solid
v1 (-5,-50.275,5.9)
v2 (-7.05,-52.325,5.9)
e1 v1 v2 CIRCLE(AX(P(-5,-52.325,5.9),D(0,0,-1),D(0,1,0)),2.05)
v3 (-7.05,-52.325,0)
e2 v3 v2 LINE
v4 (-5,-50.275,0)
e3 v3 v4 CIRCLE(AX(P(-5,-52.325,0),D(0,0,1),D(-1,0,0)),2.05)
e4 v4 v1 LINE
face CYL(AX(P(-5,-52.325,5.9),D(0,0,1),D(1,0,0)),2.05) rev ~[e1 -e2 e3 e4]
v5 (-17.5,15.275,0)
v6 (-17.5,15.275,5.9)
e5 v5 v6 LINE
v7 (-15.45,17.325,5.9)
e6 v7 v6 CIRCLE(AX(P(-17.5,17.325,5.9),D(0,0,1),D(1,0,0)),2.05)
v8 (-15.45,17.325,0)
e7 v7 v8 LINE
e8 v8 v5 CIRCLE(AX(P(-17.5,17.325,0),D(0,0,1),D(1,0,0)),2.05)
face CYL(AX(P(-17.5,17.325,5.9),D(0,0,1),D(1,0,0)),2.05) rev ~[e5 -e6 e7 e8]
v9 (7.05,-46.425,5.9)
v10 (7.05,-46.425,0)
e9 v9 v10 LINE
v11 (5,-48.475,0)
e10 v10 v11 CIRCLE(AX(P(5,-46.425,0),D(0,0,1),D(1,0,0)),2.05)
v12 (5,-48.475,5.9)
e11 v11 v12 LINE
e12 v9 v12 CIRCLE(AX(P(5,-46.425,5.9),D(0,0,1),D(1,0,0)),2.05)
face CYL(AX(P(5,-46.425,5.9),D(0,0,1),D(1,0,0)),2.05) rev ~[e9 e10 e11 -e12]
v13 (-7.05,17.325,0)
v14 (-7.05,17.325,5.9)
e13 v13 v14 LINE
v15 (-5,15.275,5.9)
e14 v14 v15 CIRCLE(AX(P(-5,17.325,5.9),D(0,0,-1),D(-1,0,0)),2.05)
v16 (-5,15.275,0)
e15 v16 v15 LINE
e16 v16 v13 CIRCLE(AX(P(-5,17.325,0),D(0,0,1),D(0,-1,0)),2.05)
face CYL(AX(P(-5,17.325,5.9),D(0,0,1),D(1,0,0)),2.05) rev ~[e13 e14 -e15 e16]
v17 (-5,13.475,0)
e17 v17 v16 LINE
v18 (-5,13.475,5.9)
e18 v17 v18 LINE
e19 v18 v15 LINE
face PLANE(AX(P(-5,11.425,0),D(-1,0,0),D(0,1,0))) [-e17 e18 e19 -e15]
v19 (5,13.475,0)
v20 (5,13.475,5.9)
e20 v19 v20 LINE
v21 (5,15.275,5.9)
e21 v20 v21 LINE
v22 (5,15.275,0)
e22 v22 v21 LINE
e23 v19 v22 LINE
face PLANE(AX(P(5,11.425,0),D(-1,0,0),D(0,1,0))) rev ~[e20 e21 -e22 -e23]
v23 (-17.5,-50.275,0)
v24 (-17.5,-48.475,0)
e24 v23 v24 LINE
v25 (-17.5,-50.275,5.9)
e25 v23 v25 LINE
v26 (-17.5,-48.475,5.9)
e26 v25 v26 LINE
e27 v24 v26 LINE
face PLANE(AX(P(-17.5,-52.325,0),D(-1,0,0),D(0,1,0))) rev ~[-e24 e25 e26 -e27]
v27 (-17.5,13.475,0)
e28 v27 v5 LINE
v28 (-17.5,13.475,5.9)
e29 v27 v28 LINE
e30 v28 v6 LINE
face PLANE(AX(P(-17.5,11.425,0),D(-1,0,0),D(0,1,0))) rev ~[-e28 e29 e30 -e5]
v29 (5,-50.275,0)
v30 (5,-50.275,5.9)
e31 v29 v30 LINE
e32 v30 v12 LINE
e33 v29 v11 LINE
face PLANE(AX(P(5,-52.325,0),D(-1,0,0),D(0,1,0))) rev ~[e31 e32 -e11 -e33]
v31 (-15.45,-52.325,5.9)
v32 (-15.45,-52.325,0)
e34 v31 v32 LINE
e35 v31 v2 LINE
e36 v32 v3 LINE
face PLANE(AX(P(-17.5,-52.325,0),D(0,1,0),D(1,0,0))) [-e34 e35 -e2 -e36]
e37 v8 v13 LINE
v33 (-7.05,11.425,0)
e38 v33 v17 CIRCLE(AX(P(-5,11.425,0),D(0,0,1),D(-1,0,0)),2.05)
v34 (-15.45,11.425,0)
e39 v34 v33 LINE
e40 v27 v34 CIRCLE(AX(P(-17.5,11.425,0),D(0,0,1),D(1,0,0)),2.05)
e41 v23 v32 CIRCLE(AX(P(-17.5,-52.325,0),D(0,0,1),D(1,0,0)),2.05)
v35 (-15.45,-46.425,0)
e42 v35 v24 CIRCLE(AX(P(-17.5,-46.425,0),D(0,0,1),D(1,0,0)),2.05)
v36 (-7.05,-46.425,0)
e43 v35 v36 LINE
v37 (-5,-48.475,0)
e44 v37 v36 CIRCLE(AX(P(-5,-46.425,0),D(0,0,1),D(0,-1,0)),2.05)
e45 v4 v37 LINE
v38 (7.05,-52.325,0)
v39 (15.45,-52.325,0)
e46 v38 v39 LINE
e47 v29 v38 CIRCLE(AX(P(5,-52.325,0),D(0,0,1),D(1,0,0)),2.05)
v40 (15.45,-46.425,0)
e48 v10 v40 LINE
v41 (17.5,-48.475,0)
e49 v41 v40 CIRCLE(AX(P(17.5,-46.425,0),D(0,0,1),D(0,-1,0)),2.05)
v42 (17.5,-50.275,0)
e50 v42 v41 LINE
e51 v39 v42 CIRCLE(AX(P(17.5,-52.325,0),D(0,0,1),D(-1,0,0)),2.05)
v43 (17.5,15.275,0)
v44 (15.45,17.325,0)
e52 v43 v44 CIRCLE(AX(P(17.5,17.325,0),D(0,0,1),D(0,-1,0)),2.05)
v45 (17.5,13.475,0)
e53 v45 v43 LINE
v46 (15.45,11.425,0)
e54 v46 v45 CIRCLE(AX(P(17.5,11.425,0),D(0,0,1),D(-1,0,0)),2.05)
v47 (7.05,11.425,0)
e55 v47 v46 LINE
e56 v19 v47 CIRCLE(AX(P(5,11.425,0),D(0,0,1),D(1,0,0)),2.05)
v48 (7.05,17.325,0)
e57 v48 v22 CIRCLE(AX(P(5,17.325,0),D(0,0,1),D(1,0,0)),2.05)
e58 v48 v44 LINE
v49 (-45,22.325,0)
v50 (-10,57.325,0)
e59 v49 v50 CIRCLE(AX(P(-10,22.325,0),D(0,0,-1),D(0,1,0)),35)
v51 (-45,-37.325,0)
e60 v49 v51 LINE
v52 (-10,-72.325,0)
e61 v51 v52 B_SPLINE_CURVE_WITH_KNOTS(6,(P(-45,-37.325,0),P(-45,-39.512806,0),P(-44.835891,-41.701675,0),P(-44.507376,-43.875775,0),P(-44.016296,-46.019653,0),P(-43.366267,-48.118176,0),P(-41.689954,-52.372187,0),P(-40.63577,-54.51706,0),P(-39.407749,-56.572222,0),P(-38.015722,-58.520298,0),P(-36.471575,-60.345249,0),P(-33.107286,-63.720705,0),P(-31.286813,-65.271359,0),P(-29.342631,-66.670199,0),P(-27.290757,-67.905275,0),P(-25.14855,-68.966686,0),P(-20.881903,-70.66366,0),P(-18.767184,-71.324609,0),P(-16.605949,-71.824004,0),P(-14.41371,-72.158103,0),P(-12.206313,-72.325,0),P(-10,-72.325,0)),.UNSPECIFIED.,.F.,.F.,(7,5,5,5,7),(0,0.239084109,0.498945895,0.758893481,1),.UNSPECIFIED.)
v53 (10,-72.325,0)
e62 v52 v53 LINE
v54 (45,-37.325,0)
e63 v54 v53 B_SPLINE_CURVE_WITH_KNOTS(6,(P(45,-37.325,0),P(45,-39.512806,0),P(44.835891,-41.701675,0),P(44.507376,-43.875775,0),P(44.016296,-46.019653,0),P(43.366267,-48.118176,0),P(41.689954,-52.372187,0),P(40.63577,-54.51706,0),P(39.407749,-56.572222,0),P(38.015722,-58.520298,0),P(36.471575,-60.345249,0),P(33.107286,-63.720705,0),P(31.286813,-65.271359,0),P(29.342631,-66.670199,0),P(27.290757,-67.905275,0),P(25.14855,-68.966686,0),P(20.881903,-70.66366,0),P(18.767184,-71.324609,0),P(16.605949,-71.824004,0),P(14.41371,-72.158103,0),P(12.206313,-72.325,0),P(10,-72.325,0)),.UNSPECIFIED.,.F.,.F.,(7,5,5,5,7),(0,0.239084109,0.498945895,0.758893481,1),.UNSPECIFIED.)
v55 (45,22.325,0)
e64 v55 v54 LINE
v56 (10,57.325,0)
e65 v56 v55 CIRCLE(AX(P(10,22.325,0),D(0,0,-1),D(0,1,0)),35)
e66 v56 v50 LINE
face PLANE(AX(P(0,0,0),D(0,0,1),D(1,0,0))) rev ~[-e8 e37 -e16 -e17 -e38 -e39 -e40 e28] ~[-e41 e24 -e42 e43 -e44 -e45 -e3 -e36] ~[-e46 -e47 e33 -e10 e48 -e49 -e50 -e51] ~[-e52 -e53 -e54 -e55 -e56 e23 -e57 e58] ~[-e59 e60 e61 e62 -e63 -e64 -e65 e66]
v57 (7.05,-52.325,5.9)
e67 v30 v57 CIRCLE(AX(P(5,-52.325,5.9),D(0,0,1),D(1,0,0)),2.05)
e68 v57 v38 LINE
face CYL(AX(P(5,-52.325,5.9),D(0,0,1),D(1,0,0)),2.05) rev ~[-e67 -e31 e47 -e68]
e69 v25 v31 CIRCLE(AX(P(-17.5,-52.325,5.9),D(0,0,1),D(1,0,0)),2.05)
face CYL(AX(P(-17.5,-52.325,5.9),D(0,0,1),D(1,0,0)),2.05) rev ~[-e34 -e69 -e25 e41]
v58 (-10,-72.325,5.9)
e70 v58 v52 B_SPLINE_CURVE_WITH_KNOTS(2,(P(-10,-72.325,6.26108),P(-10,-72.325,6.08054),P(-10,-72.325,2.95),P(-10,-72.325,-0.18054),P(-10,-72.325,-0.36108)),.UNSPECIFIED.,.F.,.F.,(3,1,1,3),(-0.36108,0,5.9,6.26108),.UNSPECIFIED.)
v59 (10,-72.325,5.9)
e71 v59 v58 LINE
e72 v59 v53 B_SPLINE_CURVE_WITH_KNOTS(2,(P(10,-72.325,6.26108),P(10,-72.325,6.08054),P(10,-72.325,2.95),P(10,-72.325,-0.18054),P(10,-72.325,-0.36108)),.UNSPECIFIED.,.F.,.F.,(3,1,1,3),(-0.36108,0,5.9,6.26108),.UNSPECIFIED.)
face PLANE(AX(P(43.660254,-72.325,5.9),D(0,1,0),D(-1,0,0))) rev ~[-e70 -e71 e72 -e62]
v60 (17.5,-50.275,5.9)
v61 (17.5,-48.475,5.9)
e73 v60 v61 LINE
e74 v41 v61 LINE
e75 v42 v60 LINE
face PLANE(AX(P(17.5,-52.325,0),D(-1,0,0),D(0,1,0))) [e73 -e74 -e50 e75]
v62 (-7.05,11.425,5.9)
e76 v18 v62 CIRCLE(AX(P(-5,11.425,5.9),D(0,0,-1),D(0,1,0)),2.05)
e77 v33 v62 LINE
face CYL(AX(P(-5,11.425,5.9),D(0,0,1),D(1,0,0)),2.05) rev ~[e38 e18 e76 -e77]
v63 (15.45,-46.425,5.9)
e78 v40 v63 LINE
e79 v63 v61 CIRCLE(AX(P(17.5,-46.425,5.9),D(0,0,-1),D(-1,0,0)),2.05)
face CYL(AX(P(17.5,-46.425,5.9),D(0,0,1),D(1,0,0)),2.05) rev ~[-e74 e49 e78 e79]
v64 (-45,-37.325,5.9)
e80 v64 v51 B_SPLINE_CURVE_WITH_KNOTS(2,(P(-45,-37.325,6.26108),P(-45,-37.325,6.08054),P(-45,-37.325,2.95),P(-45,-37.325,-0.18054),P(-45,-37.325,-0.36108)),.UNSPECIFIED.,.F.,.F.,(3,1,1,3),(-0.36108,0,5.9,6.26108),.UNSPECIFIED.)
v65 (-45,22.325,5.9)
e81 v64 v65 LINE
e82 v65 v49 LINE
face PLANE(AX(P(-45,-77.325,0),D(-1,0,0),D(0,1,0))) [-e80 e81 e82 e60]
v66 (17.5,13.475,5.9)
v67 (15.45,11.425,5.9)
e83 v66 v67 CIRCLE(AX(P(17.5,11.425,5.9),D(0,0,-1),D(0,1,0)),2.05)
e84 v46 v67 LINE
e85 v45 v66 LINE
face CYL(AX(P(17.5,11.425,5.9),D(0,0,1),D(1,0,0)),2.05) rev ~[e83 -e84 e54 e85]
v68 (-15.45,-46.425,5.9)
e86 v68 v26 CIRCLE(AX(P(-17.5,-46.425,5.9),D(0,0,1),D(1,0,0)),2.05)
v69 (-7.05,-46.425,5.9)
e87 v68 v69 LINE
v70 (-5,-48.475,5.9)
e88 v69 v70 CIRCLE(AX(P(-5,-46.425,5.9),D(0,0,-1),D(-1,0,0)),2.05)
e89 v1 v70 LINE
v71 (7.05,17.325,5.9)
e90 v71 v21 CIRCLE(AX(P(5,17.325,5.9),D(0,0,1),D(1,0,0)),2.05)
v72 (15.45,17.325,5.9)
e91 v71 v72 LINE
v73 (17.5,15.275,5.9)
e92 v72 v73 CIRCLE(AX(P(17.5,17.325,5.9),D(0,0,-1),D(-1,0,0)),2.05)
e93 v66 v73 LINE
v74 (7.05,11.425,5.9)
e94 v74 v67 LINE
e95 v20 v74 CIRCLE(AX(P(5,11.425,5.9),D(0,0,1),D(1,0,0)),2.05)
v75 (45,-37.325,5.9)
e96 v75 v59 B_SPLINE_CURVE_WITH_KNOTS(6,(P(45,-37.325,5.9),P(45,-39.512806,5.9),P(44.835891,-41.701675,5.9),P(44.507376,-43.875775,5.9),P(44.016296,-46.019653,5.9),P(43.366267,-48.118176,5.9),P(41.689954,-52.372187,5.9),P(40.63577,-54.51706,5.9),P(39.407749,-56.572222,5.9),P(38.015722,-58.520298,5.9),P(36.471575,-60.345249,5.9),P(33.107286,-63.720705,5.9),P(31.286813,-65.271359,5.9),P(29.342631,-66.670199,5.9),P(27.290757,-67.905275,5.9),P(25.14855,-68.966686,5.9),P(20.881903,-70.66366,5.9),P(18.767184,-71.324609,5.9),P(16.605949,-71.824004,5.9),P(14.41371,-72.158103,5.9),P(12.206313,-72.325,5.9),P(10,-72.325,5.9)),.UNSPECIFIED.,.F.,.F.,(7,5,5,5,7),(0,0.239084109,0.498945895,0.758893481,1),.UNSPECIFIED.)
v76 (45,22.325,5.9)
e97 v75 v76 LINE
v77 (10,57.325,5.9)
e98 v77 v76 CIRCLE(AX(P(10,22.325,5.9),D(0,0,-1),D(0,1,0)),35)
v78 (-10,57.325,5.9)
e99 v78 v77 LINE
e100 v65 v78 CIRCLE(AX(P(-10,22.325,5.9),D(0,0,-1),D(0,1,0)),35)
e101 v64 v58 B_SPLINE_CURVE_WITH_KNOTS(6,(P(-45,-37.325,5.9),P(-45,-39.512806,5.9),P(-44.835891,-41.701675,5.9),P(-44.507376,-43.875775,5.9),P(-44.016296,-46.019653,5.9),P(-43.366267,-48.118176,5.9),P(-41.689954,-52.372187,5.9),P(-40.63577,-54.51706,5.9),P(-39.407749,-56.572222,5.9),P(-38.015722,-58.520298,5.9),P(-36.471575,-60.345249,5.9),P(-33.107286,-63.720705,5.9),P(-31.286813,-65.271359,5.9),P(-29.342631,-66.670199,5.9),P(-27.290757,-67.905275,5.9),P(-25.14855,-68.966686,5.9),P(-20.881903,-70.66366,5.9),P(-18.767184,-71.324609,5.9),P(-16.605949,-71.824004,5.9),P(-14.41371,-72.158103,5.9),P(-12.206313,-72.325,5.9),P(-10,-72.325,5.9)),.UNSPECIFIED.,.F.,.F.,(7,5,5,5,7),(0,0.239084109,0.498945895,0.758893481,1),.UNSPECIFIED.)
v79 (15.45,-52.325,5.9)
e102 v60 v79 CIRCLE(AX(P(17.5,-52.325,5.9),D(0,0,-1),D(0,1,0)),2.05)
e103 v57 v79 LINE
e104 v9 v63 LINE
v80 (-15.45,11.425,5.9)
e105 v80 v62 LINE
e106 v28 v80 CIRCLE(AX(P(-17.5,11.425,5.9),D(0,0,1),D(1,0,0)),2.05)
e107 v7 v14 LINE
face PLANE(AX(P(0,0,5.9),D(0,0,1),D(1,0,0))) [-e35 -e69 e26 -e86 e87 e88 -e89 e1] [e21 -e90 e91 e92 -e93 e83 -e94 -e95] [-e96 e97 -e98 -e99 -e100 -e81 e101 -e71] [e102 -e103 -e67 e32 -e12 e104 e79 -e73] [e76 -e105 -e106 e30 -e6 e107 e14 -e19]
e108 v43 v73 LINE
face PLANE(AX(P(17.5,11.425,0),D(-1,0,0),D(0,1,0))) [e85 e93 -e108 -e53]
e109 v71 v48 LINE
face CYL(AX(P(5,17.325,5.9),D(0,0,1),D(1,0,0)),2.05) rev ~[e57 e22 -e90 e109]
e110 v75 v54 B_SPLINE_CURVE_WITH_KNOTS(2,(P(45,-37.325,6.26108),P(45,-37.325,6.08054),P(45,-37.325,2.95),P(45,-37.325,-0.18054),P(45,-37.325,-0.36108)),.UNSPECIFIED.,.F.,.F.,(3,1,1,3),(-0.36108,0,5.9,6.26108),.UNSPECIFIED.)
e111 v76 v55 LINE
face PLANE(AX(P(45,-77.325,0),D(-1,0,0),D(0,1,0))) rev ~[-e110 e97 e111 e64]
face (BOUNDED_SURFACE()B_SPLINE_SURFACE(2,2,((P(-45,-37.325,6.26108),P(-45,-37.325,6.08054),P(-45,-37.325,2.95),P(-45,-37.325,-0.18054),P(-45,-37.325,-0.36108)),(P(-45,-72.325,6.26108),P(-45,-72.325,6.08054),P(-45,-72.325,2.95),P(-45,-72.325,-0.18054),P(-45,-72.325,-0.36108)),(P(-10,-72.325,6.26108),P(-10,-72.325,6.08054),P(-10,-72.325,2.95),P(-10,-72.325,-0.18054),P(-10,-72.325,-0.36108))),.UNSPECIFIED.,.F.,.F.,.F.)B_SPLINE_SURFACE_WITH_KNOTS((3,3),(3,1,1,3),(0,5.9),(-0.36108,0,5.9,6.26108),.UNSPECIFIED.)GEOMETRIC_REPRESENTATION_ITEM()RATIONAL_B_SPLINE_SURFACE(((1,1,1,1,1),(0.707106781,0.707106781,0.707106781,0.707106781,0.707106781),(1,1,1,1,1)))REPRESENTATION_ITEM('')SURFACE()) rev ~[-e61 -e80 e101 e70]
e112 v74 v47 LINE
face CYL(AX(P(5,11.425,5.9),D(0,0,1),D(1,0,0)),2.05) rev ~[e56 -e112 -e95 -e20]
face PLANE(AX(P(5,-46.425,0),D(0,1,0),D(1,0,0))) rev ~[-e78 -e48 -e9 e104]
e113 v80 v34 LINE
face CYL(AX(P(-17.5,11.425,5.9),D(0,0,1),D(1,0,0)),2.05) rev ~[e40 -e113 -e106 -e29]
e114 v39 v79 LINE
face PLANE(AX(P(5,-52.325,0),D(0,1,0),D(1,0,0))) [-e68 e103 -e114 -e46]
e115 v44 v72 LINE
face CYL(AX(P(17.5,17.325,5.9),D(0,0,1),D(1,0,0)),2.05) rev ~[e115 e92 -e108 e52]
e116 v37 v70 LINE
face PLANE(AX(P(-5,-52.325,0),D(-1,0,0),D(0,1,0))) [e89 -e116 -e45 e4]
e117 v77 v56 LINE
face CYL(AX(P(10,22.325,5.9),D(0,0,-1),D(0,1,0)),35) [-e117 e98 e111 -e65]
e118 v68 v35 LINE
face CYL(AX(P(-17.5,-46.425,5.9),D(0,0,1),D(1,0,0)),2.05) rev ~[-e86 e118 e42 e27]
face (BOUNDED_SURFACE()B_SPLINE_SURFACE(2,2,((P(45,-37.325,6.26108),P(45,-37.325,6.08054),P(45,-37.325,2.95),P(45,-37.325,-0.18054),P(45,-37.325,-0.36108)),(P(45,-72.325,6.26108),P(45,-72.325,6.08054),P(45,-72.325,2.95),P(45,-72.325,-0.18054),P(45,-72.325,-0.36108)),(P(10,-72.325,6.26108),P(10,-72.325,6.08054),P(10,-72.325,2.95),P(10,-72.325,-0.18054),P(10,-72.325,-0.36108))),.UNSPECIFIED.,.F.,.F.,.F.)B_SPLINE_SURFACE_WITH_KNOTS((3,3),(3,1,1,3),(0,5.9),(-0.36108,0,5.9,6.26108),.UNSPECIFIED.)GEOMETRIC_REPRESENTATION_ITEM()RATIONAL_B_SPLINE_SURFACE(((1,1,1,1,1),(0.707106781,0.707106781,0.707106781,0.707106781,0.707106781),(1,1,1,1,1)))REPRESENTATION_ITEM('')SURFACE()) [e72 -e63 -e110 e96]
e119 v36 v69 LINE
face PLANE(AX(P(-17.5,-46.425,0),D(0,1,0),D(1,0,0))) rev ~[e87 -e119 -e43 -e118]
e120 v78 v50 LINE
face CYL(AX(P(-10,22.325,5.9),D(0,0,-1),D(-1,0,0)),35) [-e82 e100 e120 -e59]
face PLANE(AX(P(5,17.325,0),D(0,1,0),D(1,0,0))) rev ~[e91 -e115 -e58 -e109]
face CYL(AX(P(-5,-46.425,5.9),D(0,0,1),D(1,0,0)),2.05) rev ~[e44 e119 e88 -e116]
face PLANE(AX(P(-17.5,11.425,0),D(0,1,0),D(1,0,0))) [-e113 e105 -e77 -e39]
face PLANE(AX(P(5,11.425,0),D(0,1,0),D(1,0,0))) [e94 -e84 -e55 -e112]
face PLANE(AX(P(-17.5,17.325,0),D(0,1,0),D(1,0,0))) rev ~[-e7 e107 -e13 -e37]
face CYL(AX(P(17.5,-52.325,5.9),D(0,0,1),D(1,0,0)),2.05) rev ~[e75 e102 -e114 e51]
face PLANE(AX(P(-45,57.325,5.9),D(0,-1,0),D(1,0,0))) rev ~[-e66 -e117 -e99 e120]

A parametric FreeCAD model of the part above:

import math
import FreeCAD as App
import Part
import Sketcher
from FreeCAD import Vector


def edges_at(feature, points):
    """Names of the edges that pass closest to the given points."""
    edges = feature.Shape.Edges
    near = lambda p: min(range(len(edges)), key=lambda i: edges[i].distToShape(Part.Vertex(*p))[0])
    return sorted({f"Edge{near(p) + 1}" for p in points})

doc = App.newDocument("Part")
params = doc.addObject("Spreadsheet::Sheet", "Params")
for row, (alias, value) in enumerate([
    ("sketch1_width", "90 mm"),
    ("sketch1_width2", "12.5 mm"),
    ("sketch1_height", "5.9 mm"),
    ("sketch1_height2", "154.65 mm"),
    ("pad1_length", "5.9 mm"),
    ("fillet_radius", "10 mm"),
    ("sketch2_radius", "10 mm"),
    ("sketch2_radius2", "2 mm"),
    ("sketch2_width", "9 mm"),
    ("sketch2_length", "17 mm"),
    ("sketch2_length2", "9 mm"),
    ("pad2_length", "5.9 mm"),
    ("sketch3_diameter", "4.1 mm"),
    ("sketch4_diameter", "4.1 mm"),
    ("sketch5_diameter", "4.1 mm"),
    ("sketch6_diameter", "4.1 mm"),
    ("sketch7_diameter", "4.1 mm"),
    ("sketch8_diameter", "4.1 mm"),
    ("sketch9_diameter", "4.1 mm"),
    ("sketch10_diameter", "4.1 mm"),
    ("sketch11_diameter", "4.1 mm"),
    ("sketch12_diameter", "4.1 mm"),
    ("sketch13_diameter", "4.1 mm"),
    ("sketch14_diameter", "4.1 mm"),
    ("sketch15_diameter", "4.1 mm"),
    ("sketch16_diameter", "4.1 mm"),
    ("sketch17_diameter", "4.1 mm"),
    ("sketch18_diameter", "4.1 mm"),
    ("sketch19_radius", "10 mm"),
    ("sketch19_radius2", "2 mm"),
    ("sketch19_width", "90 mm"),
    ("sketch19_height", "10 mm"),
    ("sketch19_length", "9 mm"),
    ("pocket17_length", "5.9 mm"),
    ("sketch20_radius", "10 mm"),
    ("sketch20_width", "9 mm"),
    ("sketch20_length", "17 mm"),
    ("sketch20_width2", "10.4 mm"),
    ("sketch20_height", "12.3 mm"),
    ("fillet2_radius", "35 mm"),
], start=1):
    params.set(f"A{row}", alias)
    params.set(f"B{row}", "=" + value)
    params.setAlias(f"B{row}", alias)

body = doc.addObject("PartDesign::Body", "Body")

# Sketch on XY plane
sketch1 = body.newObject("Sketcher::SketchObject", "Sketch")
sketch1.AttachmentSupport = (doc.getObject("XY_Plane"), [""])
sketch1.MapMode = "FlatFace"
sketch1.addGeometry([
    Part.LineSegment(Vector(-45, 77, 0), Vector(-45, -77, 0)),  # 0
    Part.LineSegment(Vector(-45, -77, 0), Vector(45, -77, 0)),  # 1
    Part.LineSegment(Vector(45, -77, 0), Vector(45, 77, 0)),  # 2
    Part.LineSegment(Vector(45, 77, 0), Vector(-45, 77, 0)),  # 3
    Part.LineSegment(Vector(-5, -52, 0), Vector(-18, -52, 0)),  # 4
    Part.LineSegment(Vector(-18, -52, 0), Vector(-18, -46, 0)),  # 5
    Part.LineSegment(Vector(-18, -46, 0), Vector(-5, -46, 0)),  # 6
    Part.LineSegment(Vector(-5, -46, 0), Vector(-5, -52, 0)),  # 7
    Part.LineSegment(Vector(18, -52, 0), Vector(5, -52, 0)),  # 8
    Part.LineSegment(Vector(5, -52, 0), Vector(5, -46, 0)),  # 9
    Part.LineSegment(Vector(5, -46, 0), Vector(18, -46, 0)),  # 10
    Part.LineSegment(Vector(18, -46, 0), Vector(18, -52, 0)),  # 11
    Part.LineSegment(Vector(-5, 11, 0), Vector(-18, 11, 0)),  # 12
    Part.LineSegment(Vector(-18, 11, 0), Vector(-18, 17, 0)),  # 13
    Part.LineSegment(Vector(-18, 17, 0), Vector(-5, 17, 0)),  # 14
    Part.LineSegment(Vector(-5, 17, 0), Vector(-5, 11, 0)),  # 15
    Part.LineSegment(Vector(18, 11, 0), Vector(5, 11, 0)),  # 16
    Part.LineSegment(Vector(5, 11, 0), Vector(5, 17, 0)),  # 17
    Part.LineSegment(Vector(5, 17, 0), Vector(18, 17, 0)),  # 18
    Part.LineSegment(Vector(18, 17, 0), Vector(18, 11, 0)),  # 19
], False)
sketch1.addConstraint([
    Sketcher.Constraint("Coincident", 0, 2, 1, 1),
    Sketcher.Constraint("Coincident", 1, 2, 2, 1),
    Sketcher.Constraint("Coincident", 2, 2, 3, 1),
    Sketcher.Constraint("Coincident", 3, 2, 0, 1),
    Sketcher.Constraint("Coincident", 4, 2, 5, 1),
    Sketcher.Constraint("Coincident", 5, 2, 6, 1),
    Sketcher.Constraint("Coincident", 6, 2, 7, 1),
    Sketcher.Constraint("Coincident", 7, 2, 4, 1),
    Sketcher.Constraint("Coincident", 8, 2, 9, 1),
    Sketcher.Constraint("Coincident", 9, 2, 10, 1),
    Sketcher.Constraint("Coincident", 10, 2, 11, 1),
    Sketcher.Constraint("Coincident", 11, 2, 8, 1),
    Sketcher.Constraint("Coincident", 12, 2, 13, 1),
    Sketcher.Constraint("Coincident", 13, 2, 14, 1),
    Sketcher.Constraint("Coincident", 14, 2, 15, 1),
    Sketcher.Constraint("Coincident", 15, 2, 12, 1),
    Sketcher.Constraint("Coincident", 16, 2, 17, 1),
    Sketcher.Constraint("Coincident", 17, 2, 18, 1),
    Sketcher.Constraint("Coincident", 18, 2, 19, 1),
    Sketcher.Constraint("Coincident", 19, 2, 16, 1),
    Sketcher.Constraint("Vertical", 0),
    Sketcher.Constraint("Horizontal", 1),
    Sketcher.Constraint("Vertical", 2),
    Sketcher.Constraint("Horizontal", 3),
    Sketcher.Constraint("Horizontal", 4),
    Sketcher.Constraint("Vertical", 5),
    Sketcher.Constraint("Horizontal", 6),
    Sketcher.Constraint("Vertical", 7),
    Sketcher.Constraint("Horizontal", 8),
    Sketcher.Constraint("Vertical", 9),
    Sketcher.Constraint("Horizontal", 10),
    Sketcher.Constraint("Vertical", 11),
    Sketcher.Constraint("Horizontal", 12),
    Sketcher.Constraint("Vertical", 13),
    Sketcher.Constraint("Horizontal", 14),
    Sketcher.Constraint("Vertical", 15),
    Sketcher.Constraint("Horizontal", 16),
    Sketcher.Constraint("Vertical", 17),
    Sketcher.Constraint("Horizontal", 18),
    Sketcher.Constraint("Vertical", 19),
    Sketcher.Constraint("Symmetric", 0, 2, 2, 2, -1, 1),
    Sketcher.Constraint("Symmetric", 7, 2, 8, 2, -2),
    Sketcher.Constraint("Symmetric", 5, 2, 10, 2, -2),
    Sketcher.Constraint("Symmetric", 15, 2, 16, 2, -2),
    Sketcher.Constraint("Symmetric", 13, 2, 18, 2, -2),
    Sketcher.Constraint("Vertical", 5, 2, 12, 2),
    Sketcher.Constraint("Vertical", 7, 2, 14, 2),
    Sketcher.Constraint("Equal", 11, 13),
    Sketcher.Constraint("DistanceX", 1, 1, 1, 2, 90.0),
    Sketcher.Constraint("DistanceX", 4, 2, 4, 1, 12.5),
    Sketcher.Constraint("DistanceY", 5, 1, 5, 2, 5.9),
    Sketcher.Constraint("DistanceX", 6, 2, -1, 1, 5.0),
    Sketcher.Constraint("DistanceY", 0, 2, 4, 2, 25.0),
    Sketcher.Constraint("DistanceY", 13, 2, 3, 2, 60.0),
    Sketcher.Constraint("DistanceY", 0, 2, 0, 1, 154.65),
])
sketch1.setExpression("Constraints[48]", "Params.sketch1_width")
sketch1.setExpression("Constraints[49]", "Params.sketch1_width2")
sketch1.setExpression("Constraints[50]", "Params.sketch1_height")
sketch1.setExpression("Constraints[54]", "Params.sketch1_height2")
pad1 = body.newObject("PartDesign::Pad", "Pad")
pad1.Profile = sketch1
pad1.setExpression("Length", "Params.pad1_length")
doc.recompute()

fillet = body.newObject("PartDesign::Fillet", "Fillet")
fillet.Base = (pad1, edges_at(pad1, [
    (45, -77.325, 2.95),
    (-45, -77.325, 2.95),
    (-45, 77.325, 2.95),
    (45, 77.325, 2.95),
]))
fillet.setExpression("Radius", "Params.fillet_radius")

# Sketch on XY plane
sketch2 = body.newObject("Sketcher::SketchObject", "Sketch001")
sketch2.AttachmentSupport = (doc.getObject("XY_Plane"), [""])
sketch2.MapMode = "FlatFace"
sketch2.AttachmentOffset = App.Placement(Vector(0, 0, 5.9), App.Rotation())
sketch2.addGeometry([
    Part.LineSegment(Vector(24.6, -77.3, 0), Vector(-24.6, -77.3, 0)),  # 0
    Part.LineSegment(Vector(-24.6, -77.3, 0), Vector(-10, -90.9, 0)),  # 1
    Part.LineSegment(Vector(-10, -90.9, 0), Vector(-10, -103.2, 0)),  # 2
    Part.LineSegment(Vector(-10, -103.2, 0), Vector(-4.5, -119.3, 0)),  # 3
    Part.LineSegment(Vector(-4.5, -119.3, 0), Vector(4.5, -119.3, 0)),  # 4
    Part.LineSegment(Vector(4.5, -119.3, 0), Vector(10, -103.2, 0)),  # 5
    Part.LineSegment(Vector(10, -103.2, 0), Vector(10, -90.9, 0)),  # 6
    Part.LineSegment(Vector(10, -90.9, 0), Vector(24.6, -77.3, 0)),  # 7
    Part.LineSegment(Vector(-45, 67.3, 0), Vector(-45, 53.5, 0)),  # 8
    Part.LineSegment(Vector(-45, 53.5, 0), Vector(0, 77.3, 0)),  # 9
    Part.ArcOfCircle(Part.Circle(Vector(0, 87.3, 0), Vector(0, 0, 1), 10), math.radians(-149), math.radians(-90)),  # 10
    Part.LineSegment(Vector(-8.5, 82.1, 0), Vector(-15.7, 93.8, 0)),  # 11
    Part.LineSegment(Vector(-15.7, 93.8, 0), Vector(-36.6, 117.7, 0)),  # 12
    Part.LineSegment(Vector(-36.6, 117.7, 0), Vector(-44.3, 113.1, 0)),  # 13
    Part.LineSegment(Vector(-44.3, 113.1, 0), Vector(-38.6, 93.1, 0)),  # 14
    Part.LineSegment(Vector(-38.6, 93.1, 0), Vector(-32, 80.2, 0)),  # 15
    Part.ArcOfCircle(Part.Circle(Vector(-33.7, 79.3, 0), Vector(0, 0, 1), 2), math.radians(-90), math.radians(27)),  # 16
    Part.LineSegment(Vector(-33.7, 77.3, 0), Vector(-35, 77.3, 0)),  # 17
    Part.ArcOfCircle(Part.Circle(Vector(-35, 67.3, 0), Vector(0, 0, 1), 10), math.radians(90), math.radians(180)),  # 18
    Part.ArcOfCircle(Part.Circle(Vector(0, 87.3, 0), Vector(0, 0, 1), 10), math.radians(-90), math.radians(-31)),  # 19
    Part.LineSegment(Vector(0, 77.3, 0), Vector(45, 53.5, 0)),  # 20
    Part.LineSegment(Vector(45, 53.5, 0), Vector(45, 67.3, 0)),  # 21
    Part.ArcOfCircle(Part.Circle(Vector(35, 67.3, 0), Vector(0, 0, 1), 10), math.radians(0), math.radians(90)),  # 22
    Part.LineSegment(Vector(35, 77.3, 0), Vector(33.7, 77.3, 0)),  # 23
    Part.ArcOfCircle(Part.Circle(Vector(33.7, 79.3, 0), Vector(0, 0, 1), 2), math.radians(153), math.radians(270)),  # 24
    Part.LineSegment(Vector(32, 80.2, 0), Vector(38.6, 93.1, 0)),  # 25
    Part.LineSegment(Vector(38.6, 93.1, 0), Vector(44.3, 113.1, 0)),  # 26
    Part.LineSegment(Vector(44.3, 113.1, 0), Vector(36.6, 117.7, 0)),  # 27
    Part.LineSegment(Vector(36.6, 117.7, 0), Vector(15.7, 93.8, 0)),  # 28
    Part.LineSegment(Vector(15.7, 93.8, 0), Vector(8.5, 82.1, 0)),  # 29
], False)
sketch2.addConstraint([
    Sketcher.Constraint("Coincident", 0, 2, 1, 1),
    Sketcher.Constraint("Coincident", 1, 2, 2, 1),
    Sketcher.Constraint("Coincident", 2, 2, 3, 1),
    Sketcher.Constraint("Coincident", 3, 2, 4, 1),
    Sketcher.Constraint("Coincident", 4, 2, 5, 1),
    Sketcher.Constraint("Coincident", 5, 2, 6, 1),
    Sketcher.Constraint("Coincident", 6, 2, 7, 1),
    Sketcher.Constraint("Coincident", 7, 2, 0, 1),
    Sketcher.Constraint("Coincident", 8, 2, 9, 1),
    Sketcher.Constraint("Coincident", 9, 2, 10, 2),
    Sketcher.Constraint("Tangent", 10, 1, 11, 1),
    Sketcher.Constraint("Coincident", 11, 2, 12, 1),
    Sketcher.Constraint("Coincident", 12, 2, 13, 1),
    Sketcher.Constraint("Coincident", 13, 2, 14, 1),
    Sketcher.Constraint("Coincident", 14, 2, 15, 1),
    Sketcher.Constraint("Tangent", 15, 2, 16, 2),
    Sketcher.Constraint("Tangent", 16, 1, 17, 1),
    Sketcher.Constraint("Tangent", 17, 2, 18, 1),
    Sketcher.Constraint("Tangent", 18, 2, 8, 1),
    Sketcher.Constraint("Coincident", 19, 1, 20, 1),
    Sketcher.Constraint("Coincident", 20, 2, 21, 1),
    Sketcher.Constraint("Tangent", 21, 2, 22, 1),
    Sketcher.Constraint("Tangent", 22, 2, 23, 1),
    Sketcher.Constraint("Tangent", 23, 2, 24, 2),
    Sketcher.Constraint("Tangent", 24, 1, 25, 1),
    Sketcher.Constraint("Coincident", 25, 2, 26, 1),
    Sketcher.Constraint("Coincident", 26, 2, 27, 1),
    Sketcher.Constraint("Coincident", 27, 2, 28, 1),
    Sketcher.Constraint("Coincident", 28, 2, 29, 1),
    Sketcher.Constraint("Tangent", 29, 2, 19, 2),
    Sketcher.Constraint("Horizontal", 0),
    Sketcher.Constraint("Vertical", 2),
    Sketcher.Constraint("Horizontal", 4),
    Sketcher.Constraint("Vertical", 6),
    Sketcher.Constraint("Vertical", 8),
    Sketcher.Constraint("Horizontal", 17),
    Sketcher.Constraint("Vertical", 21),
    Sketcher.Constraint("Horizontal", 23),
    Sketcher.Constraint("Coincident", 19, 3, 10, 3),
    Sketcher.Constraint("Coincident", 19, 1, 9, 2),
    Sketcher.Constraint("Equal", 10, 18),
    Sketcher.Constraint("Equal", 19, 22),
    Sketcher.Constraint("Equal", 16, 24),
    Sketcher.Constraint("Symmetric", 18, 3, 22, 3, -2),
    Sketcher.Constraint("Symmetric", 2, 2, 5, 2, -2),
    Sketcher.Constraint("Symmetric", 15, 2, 24, 1, -2),
    Sketcher.Constraint("Symmetric", 13, 2, 26, 2, -2),
    Sketcher.Constraint("Symmetric", 12, 2, 27, 2, -2),
    Sketcher.Constraint("Symmetric", 11, 2, 28, 2, -2),
    Sketcher.Constraint("PointOnObject", 10, 3, -2),
    Sketcher.Constraint("PointOnObject", 9, 2, -2),
    Sketcher.Constraint("Perpendicular", 11, 13),
    Sketcher.Constraint("Horizontal", 1, 2, 6, 2),
    Sketcher.Constraint("Horizontal", 9, 2, 16, 1),
    Sketcher.Constraint("Horizontal", 8, 2, 20, 2),
    Sketcher.Constraint("Horizontal", 14, 2, 25, 2),
    Sketcher.Constraint("Equal", 3, 5),
    Sketcher.Constraint("Equal", 1, 7),
    Sketcher.Constraint("Radius", 10, 10.0),
    Sketcher.Constraint("Radius", 16, 2.0),
    Sketcher.Constraint("DistanceX", 4, 1, 4, 2, 9.0),
    Sketcher.Constraint("Distance", 3, 17.0),
    Sketcher.Constraint("Distance", 13, 9.0),
    Sketcher.Constraint("DistanceX", 0, 2, 0, 1, 49.2),
    Sketcher.Constraint("DistanceY", 2, 2, 2, 1, 12.3),
    Sketcher.Constraint("DistanceX", 18, 3, -1, 1, 35.0),
    Sketcher.Constraint("DistanceX", 1, 2, -1, 1, 10.0),
    Sketcher.Constraint("DistanceY", 3, 2, 0, 2, 42.0),
    Sketcher.Constraint("DistanceY", 14, 2, 13, 2, 20.0),
    Sketcher.Constraint("DistanceY", 0, 2, 18, 3, 144.65),
    Sketcher.Constraint("DistanceY", -1, 1, 10, 3, 87.325),
    Sketcher.Constraint("DistanceX", 15, 2, 11, 2, 16.317001),
    Sketcher.Constraint("DistanceX", 17, 2, 17, 1, 1.252091),
    Sketcher.Constraint("DistanceY", 15, 2, 10, 1, 1.892902),
    Sketcher.Constraint("Distance", 11, 13.690549),
    Sketcher.Constraint("Distance", 12, 31.788862),
    Sketcher.Constraint("DistanceY", 8, 2, 8, 1, 13.842652),
    Sketcher.Constraint("DistanceY", -1, 1, 12, 2, 117.743891),
])
sketch2.setExpression("Constraints[58]", "Params.sketch2_radius")
sketch2.setExpression("Constraints[59]", "Params.sketch2_radius2")
sketch2.setExpression("Constraints[60]", "Params.sketch2_width")
sketch2.setExpression("Constraints[61]", "Params.sketch2_length")
sketch2.setExpression("Constraints[62]", "Params.sketch2_length2")
pad2 = body.newObject("PartDesign::Pad", "Pad001")
pad2.Profile = sketch2
pad2.setExpression("Length", "Params.pad2_length")
pad2.Reversed = True

# Sketch on XY plane
sketch3 = body.newObject("Sketcher::SketchObject", "Sketch002")
sketch3.AttachmentSupport = (doc.getObject("XY_Plane"), [""])
sketch3.MapMode = "FlatFace"
sketch3.AttachmentOffset = App.Placement(Vector(0, 0, 5.9), App.Rotation())
sketch3.addGeometry(Part.Circle(Vector(-17.5, 11.4, 0), Vector(0, 0, 1), 2), False)
sketch3.addConstraint([
    Sketcher.Constraint("Diameter", 0, 4.1),
    Sketcher.Constraint("DistanceX", 0, 3, -1, 1, 17.5),
    Sketcher.Constraint("DistanceY", -1, 1, 0, 3, 11.425),
])
sketch3.setExpression("Constraints[0]", "Params.sketch3_diameter")
pocket1 = body.newObject("PartDesign::Pocket", "Pocket")
pocket1.Profile = sketch3
pocket1.Type = "UpToFirst"

# Sketch on XY plane
sketch4 = body.newObject("Sketcher::SketchObject", "Sketch003")
sketch4.AttachmentSupport = (doc.getObject("XY_Plane"), [""])
sketch4.MapMode = "FlatFace"
sketch4.AttachmentOffset = App.Placement(Vector(0, 0, 5.9), App.Rotation())
sketch4.addGeometry(Part.Circle(Vector(-5, 11.4, 0), Vector(0, 0, 1), 2), False)
sketch4.addConstraint([
    Sketcher.Constraint("Diameter", 0, 4.1),
    Sketcher.Constraint("DistanceX", 0, 3, -1, 1, 5.0),
    Sketcher.Constraint("DistanceY", -1, 1, 0, 3, 11.425),
])
sketch4.setExpression("Constraints[0]", "Params.sketch4_diameter")
pocket2 = body.newObject("PartDesign::Pocket", "Pocket001")
pocket2.Profile = sketch4
pocket2.Type = "UpToFirst"

# Sketch on XY plane
sketch5 = body.newObject("Sketcher::SketchObject", "Sketch004")
sketch5.AttachmentSupport = (doc.getObject("XY_Plane"), [""])
sketch5.MapMode = "FlatFace"
sketch5.AttachmentOffset = App.Placement(Vector(0, 0, 5.9), App.Rotation())
sketch5.addGeometry(Part.Circle(Vector(-5, 17.3, 0), Vector(0, 0, 1), 2), False)
sketch5.addConstraint([
    Sketcher.Constraint("Diameter", 0, 4.1),
    Sketcher.Constraint("DistanceX", 0, 3, -1, 1, 5.0),
    Sketcher.Constraint("DistanceY", -1, 1, 0, 3, 17.325),
])
sketch5.setExpression("Constraints[0]", "Params.sketch5_diameter")
pocket3 = body.newObject("PartDesign::Pocket", "Pocket002")
pocket3.Profile = sketch5
pocket3.Type = "UpToFirst"

# Sketch on XY plane
sketch6 = body.newObject("Sketcher::SketchObject", "Sketch005")
sketch6.AttachmentSupport = (doc.getObject("XY_Plane"), [""])
sketch6.MapMode = "FlatFace"
sketch6.AttachmentOffset = App.Placement(Vector(0, 0, 5.9), App.Rotation())
sketch6.addGeometry(Part.Circle(Vector(-17.5, 17.3, 0), Vector(0, 0, 1), 2), False)
sketch6.addConstraint([
    Sketcher.Constraint("Diameter", 0, 4.1),
    Sketcher.Constraint("DistanceX", 0, 3, -1, 1, 17.5),
    Sketcher.Constraint("DistanceY", -1, 1, 0, 3, 17.325),
])
sketch6.setExpression("Constraints[0]", "Params.sketch6_diameter")
pocket4 = body.newObject("PartDesign::Pocket", "Pocket003")
pocket4.Profile = sketch6
pocket4.Type = "UpToFirst"

# Sketch on XY plane
sketch7 = body.newObject("Sketcher::SketchObject", "Sketch006")
sketch7.AttachmentSupport = (doc.getObject("XY_Plane"), [""])
sketch7.MapMode = "FlatFace"
sketch7.AttachmentOffset = App.Placement(Vector(0, 0, 5.9), App.Rotation())
sketch7.addGeometry(Part.Circle(Vector(17.5, 11.4, 0), Vector(0, 0, 1), 2), False)
sketch7.addConstraint([
    Sketcher.Constraint("Diameter", 0, 4.1),
    Sketcher.Constraint("DistanceX", -1, 1, 0, 3, 17.5),
    Sketcher.Constraint("DistanceY", -1, 1, 0, 3, 11.425),
])
sketch7.setExpression("Constraints[0]", "Params.sketch7_diameter")
pocket5 = body.newObject("PartDesign::Pocket", "Pocket004")
pocket5.Profile = sketch7
pocket5.Type = "UpToFirst"

# Sketch on XY plane
sketch8 = body.newObject("Sketcher::SketchObject", "Sketch007")
sketch8.AttachmentSupport = (doc.getObject("XY_Plane"), [""])
sketch8.MapMode = "FlatFace"
sketch8.AttachmentOffset = App.Placement(Vector(0, 0, 5.9), App.Rotation())
sketch8.addGeometry(Part.Circle(Vector(17.5, 17.3, 0), Vector(0, 0, 1), 2), False)
sketch8.addConstraint([
    Sketcher.Constraint("Diameter", 0, 4.1),
    Sketcher.Constraint("DistanceX", -1, 1, 0, 3, 17.5),
    Sketcher.Constraint("DistanceY", -1, 1, 0, 3, 17.325),
])
sketch8.setExpression("Constraints[0]", "Params.sketch8_diameter")
pocket6 = body.newObject("PartDesign::Pocket", "Pocket005")
pocket6.Profile = sketch8
pocket6.Type = "UpToFirst"

# Sketch on XY plane
sketch9 = body.newObject("Sketcher::SketchObject", "Sketch008")
sketch9.AttachmentSupport = (doc.getObject("XY_Plane"), [""])
sketch9.MapMode = "FlatFace"
sketch9.AttachmentOffset = App.Placement(Vector(0, 0, 5.9), App.Rotation())
sketch9.addGeometry(Part.Circle(Vector(5, 17.3, 0), Vector(0, 0, 1), 2), False)
sketch9.addConstraint([
    Sketcher.Constraint("Diameter", 0, 4.1),
    Sketcher.Constraint("DistanceX", -1, 1, 0, 3, 5.0),
    Sketcher.Constraint("DistanceY", -1, 1, 0, 3, 17.325),
])
sketch9.setExpression("Constraints[0]", "Params.sketch9_diameter")
pocket7 = body.newObject("PartDesign::Pocket", "Pocket006")
pocket7.Profile = sketch9
pocket7.Type = "UpToFirst"

# Sketch on XY plane
sketch10 = body.newObject("Sketcher::SketchObject", "Sketch009")
sketch10.AttachmentSupport = (doc.getObject("XY_Plane"), [""])
sketch10.MapMode = "FlatFace"
sketch10.AttachmentOffset = App.Placement(Vector(0, 0, 5.9), App.Rotation())
sketch10.addGeometry(Part.Circle(Vector(5, 11.4, 0), Vector(0, 0, 1), 2), False)
sketch10.addConstraint([
    Sketcher.Constraint("Diameter", 0, 4.1),
    Sketcher.Constraint("DistanceX", -1, 1, 0, 3, 5.0),
    Sketcher.Constraint("DistanceY", -1, 1, 0, 3, 11.425),
])
sketch10.setExpression("Constraints[0]", "Params.sketch10_diameter")
pocket8 = body.newObject("PartDesign::Pocket", "Pocket007")
pocket8.Profile = sketch10
pocket8.Type = "UpToFirst"

# Sketch on XY plane
sketch11 = body.newObject("Sketcher::SketchObject", "Sketch010")
sketch11.AttachmentSupport = (doc.getObject("XY_Plane"), [""])
sketch11.MapMode = "FlatFace"
sketch11.AttachmentOffset = App.Placement(Vector(0, 0, 5.9), App.Rotation())
sketch11.addGeometry(Part.Circle(Vector(5, -52.3, 0), Vector(0, 0, 1), 2), False)
sketch11.addConstraint([
    Sketcher.Constraint("Diameter", 0, 4.1),
    Sketcher.Constraint("DistanceX", -1, 1, 0, 3, 5.0),
    Sketcher.Constraint("DistanceY", 0, 3, -1, 1, 52.325),
])
sketch11.setExpression("Constraints[0]", "Params.sketch11_diameter")
pocket9 = body.newObject("PartDesign::Pocket", "Pocket008")
pocket9.Profile = sketch11
pocket9.Type = "UpToFirst"

# Sketch on XY plane
sketch12 = body.newObject("Sketcher::SketchObject", "Sketch011")
sketch12.AttachmentSupport = (doc.getObject("XY_Plane"), [""])
sketch12.MapMode = "FlatFace"
sketch12.AttachmentOffset = App.Placement(Vector(0, 0, 5.9), App.Rotation())
sketch12.addGeometry(Part.Circle(Vector(17.5, -52.3, 0), Vector(0, 0, 1), 2), False)
sketch12.addConstraint([
    Sketcher.Constraint("Diameter", 0, 4.1),
    Sketcher.Constraint("DistanceX", -1, 1, 0, 3, 17.5),
    Sketcher.Constraint("DistanceY", 0, 3, -1, 1, 52.325),
])
sketch12.setExpression("Constraints[0]", "Params.sketch12_diameter")
pocket10 = body.newObject("PartDesign::Pocket", "Pocket009")
pocket10.Profile = sketch12
pocket10.Type = "UpToFirst"

# Sketch on XY plane
sketch13 = body.newObject("Sketcher::SketchObject", "Sketch012")
sketch13.AttachmentSupport = (doc.getObject("XY_Plane"), [""])
sketch13.MapMode = "FlatFace"
sketch13.AttachmentOffset = App.Placement(Vector(0, 0, 5.9), App.Rotation())
sketch13.addGeometry(Part.Circle(Vector(17.5, -46.4, 0), Vector(0, 0, 1), 2), False)
sketch13.addConstraint([
    Sketcher.Constraint("Diameter", 0, 4.1),
    Sketcher.Constraint("DistanceX", -1, 1, 0, 3, 17.5),
    Sketcher.Constraint("DistanceY", 0, 3, -1, 1, 46.425),
])
sketch13.setExpression("Constraints[0]", "Params.sketch13_diameter")
pocket11 = body.newObject("PartDesign::Pocket", "Pocket010")
pocket11.Profile = sketch13
pocket11.Type = "UpToFirst"

# Sketch on XY plane
sketch14 = body.newObject("Sketcher::SketchObject", "Sketch013")
sketch14.AttachmentSupport = (doc.getObject("XY_Plane"), [""])
sketch14.MapMode = "FlatFace"
sketch14.AttachmentOffset = App.Placement(Vector(0, 0, 5.9), App.Rotation())
sketch14.addGeometry(Part.Circle(Vector(5, -46.4, 0), Vector(0, 0, 1), 2), False)
sketch14.addConstraint([
    Sketcher.Constraint("Diameter", 0, 4.1),
    Sketcher.Constraint("DistanceX", -1, 1, 0, 3, 5.0),
    Sketcher.Constraint("DistanceY", 0, 3, -1, 1, 46.425),
])
sketch14.setExpression("Constraints[0]", "Params.sketch14_diameter")
pocket12 = body.newObject("PartDesign::Pocket", "Pocket011")
pocket12.Profile = sketch14
pocket12.Type = "UpToFirst"

# Sketch on XY plane
sketch15 = body.newObject("Sketcher::SketchObject", "Sketch014")
sketch15.AttachmentSupport = (doc.getObject("XY_Plane"), [""])
sketch15.MapMode = "FlatFace"
sketch15.AttachmentOffset = App.Placement(Vector(0, 0, 5.9), App.Rotation())
sketch15.addGeometry(Part.Circle(Vector(-5, -46.4, 0), Vector(0, 0, 1), 2), False)
sketch15.addConstraint([
    Sketcher.Constraint("Diameter", 0, 4.1),
    Sketcher.Constraint("DistanceX", 0, 3, -1, 1, 5.0),
    Sketcher.Constraint("DistanceY", 0, 3, -1, 1, 46.425),
])
sketch15.setExpression("Constraints[0]", "Params.sketch15_diameter")
pocket13 = body.newObject("PartDesign::Pocket", "Pocket012")
pocket13.Profile = sketch15
pocket13.Type = "UpToFirst"

# Sketch on XY plane
sketch16 = body.newObject("Sketcher::SketchObject", "Sketch015")
sketch16.AttachmentSupport = (doc.getObject("XY_Plane"), [""])
sketch16.MapMode = "FlatFace"
sketch16.AttachmentOffset = App.Placement(Vector(0, 0, 5.9), App.Rotation())
sketch16.addGeometry(Part.Circle(Vector(-5, -52.3, 0), Vector(0, 0, 1), 2), False)
sketch16.addConstraint([
    Sketcher.Constraint("Diameter", 0, 4.1),
    Sketcher.Constraint("DistanceX", 0, 3, -1, 1, 5.0),
    Sketcher.Constraint("DistanceY", 0, 3, -1, 1, 52.325),
])
sketch16.setExpression("Constraints[0]", "Params.sketch16_diameter")
pocket14 = body.newObject("PartDesign::Pocket", "Pocket013")
pocket14.Profile = sketch16
pocket14.Type = "UpToFirst"

# Sketch on XY plane
sketch17 = body.newObject("Sketcher::SketchObject", "Sketch016")
sketch17.AttachmentSupport = (doc.getObject("XY_Plane"), [""])
sketch17.MapMode = "FlatFace"
sketch17.AttachmentOffset = App.Placement(Vector(0, 0, 5.9), App.Rotation())
sketch17.addGeometry(Part.Circle(Vector(-17.5, -52.3, 0), Vector(0, 0, 1), 2), False)
sketch17.addConstraint([
    Sketcher.Constraint("Diameter", 0, 4.1),
    Sketcher.Constraint("DistanceX", 0, 3, -1, 1, 17.5),
    Sketcher.Constraint("DistanceY", 0, 3, -1, 1, 52.325),
])
sketch17.setExpression("Constraints[0]", "Params.sketch17_diameter")
pocket15 = body.newObject("PartDesign::Pocket", "Pocket014")
pocket15.Profile = sketch17
pocket15.Type = "UpToFirst"

# Sketch on XY plane
sketch18 = body.newObject("Sketcher::SketchObject", "Sketch017")
sketch18.AttachmentSupport = (doc.getObject("XY_Plane"), [""])
sketch18.MapMode = "FlatFace"
sketch18.AttachmentOffset = App.Placement(Vector(0, 0, 5.9), App.Rotation())
sketch18.addGeometry(Part.Circle(Vector(-17.5, -46.4, 0), Vector(0, 0, 1), 2), False)
sketch18.addConstraint([
    Sketcher.Constraint("Diameter", 0, 4.1),
    Sketcher.Constraint("DistanceX", 0, 3, -1, 1, 17.5),
    Sketcher.Constraint("DistanceY", 0, 3, -1, 1, 46.425),
])
sketch18.setExpression("Constraints[0]", "Params.sketch18_diameter")
pocket16 = body.newObject("PartDesign::Pocket", "Pocket015")
pocket16.Profile = sketch18
pocket16.Type = "UpToFirst"

# Sketch on XY plane
sketch19 = body.newObject("Sketcher::SketchObject", "Sketch018")
sketch19.AttachmentSupport = (doc.getObject("XY_Plane"), [""])
sketch19.MapMode = "FlatFace"
sketch19.AttachmentOffset = App.Placement(Vector(0, 0, 5.9), App.Rotation())
sketch19.addGeometry([
    Part.LineSegment(Vector(-45, 67.3, 0), Vector(-45, 57.3, 0)),  # 0
    Part.LineSegment(Vector(-45, 57.3, 0), Vector(45, 57.3, 0)),  # 1
    Part.LineSegment(Vector(45, 57.3, 0), Vector(45, 67.3, 0)),  # 2
    Part.ArcOfCircle(Part.Circle(Vector(35, 67.3, 0), Vector(0, 0, 1), 10), math.radians(0), math.radians(90)),  # 3
    Part.LineSegment(Vector(35, 77.3, 0), Vector(33.7, 77.3, 0)),  # 4
    Part.ArcOfCircle(Part.Circle(Vector(33.7, 79.3, 0), Vector(0, 0, 1), 2), math.radians(153), math.radians(270)),  # 5
    Part.LineSegment(Vector(32, 80.2, 0), Vector(38.6, 93.1, 0)),  # 6
    Part.LineSegment(Vector(38.6, 93.1, 0), Vector(44.3, 113.1, 0)),  # 7
    Part.LineSegment(Vector(44.3, 113.1, 0), Vector(36.6, 117.7, 0)),  # 8
    Part.LineSegment(Vector(36.6, 117.7, 0), Vector(15.7, 93.8, 0)),  # 9
    Part.LineSegment(Vector(15.7, 93.8, 0), Vector(8.5, 82.1, 0)),  # 10
    Part.ArcOfCircle(Part.Circle(Vector(0, 87.3, 0), Vector(0, 0, 1), 10), math.radians(-149), math.radians(-31)),  # 11
    Part.LineSegment(Vector(-8.5, 82.1, 0), Vector(-15.7, 93.8, 0)),  # 12
    Part.LineSegment(Vector(-15.7, 93.8, 0), Vector(-36.6, 117.7, 0)),  # 13
    Part.LineSegment(Vector(-36.6, 117.7, 0), Vector(-44.3, 113.1, 0)),  # 14
    Part.LineSegment(Vector(-44.3, 113.1, 0), Vector(-38.6, 93.1, 0)),  # 15
    Part.LineSegment(Vector(-38.6, 93.1, 0), Vector(-32, 80.2, 0)),  # 16
    Part.ArcOfCircle(Part.Circle(Vector(-33.7, 79.3, 0), Vector(0, 0, 1), 2), math.radians(-90), math.radians(27)),  # 17
    Part.LineSegment(Vector(-33.7, 77.3, 0), Vector(-35, 77.3, 0)),  # 18
    Part.ArcOfCircle(Part.Circle(Vector(-35, 67.3, 0), Vector(0, 0, 1), 10), math.radians(90), math.radians(180)),  # 19
], False)
sketch19.addConstraint([
    Sketcher.Constraint("Coincident", 0, 2, 1, 1),
    Sketcher.Constraint("Coincident", 1, 2, 2, 1),
    Sketcher.Constraint("Tangent", 2, 2, 3, 1),
    Sketcher.Constraint("Tangent", 3, 2, 4, 1),
    Sketcher.Constraint("Tangent", 4, 2, 5, 2),
    Sketcher.Constraint("Tangent", 5, 1, 6, 1),
    Sketcher.Constraint("Coincident", 6, 2, 7, 1),
    Sketcher.Constraint("Coincident", 7, 2, 8, 1),
    Sketcher.Constraint("Coincident", 8, 2, 9, 1),
    Sketcher.Constraint("Coincident", 9, 2, 10, 1),
    Sketcher.Constraint("Tangent", 10, 2, 11, 2),
    Sketcher.Constraint("Tangent", 11, 1, 12, 1),
    Sketcher.Constraint("Coincident", 12, 2, 13, 1),
    Sketcher.Constraint("Coincident", 13, 2, 14, 1),
    Sketcher.Constraint("Coincident", 14, 2, 15, 1),
    Sketcher.Constraint("Coincident", 15, 2, 16, 1),
    Sketcher.Constraint("Tangent", 16, 2, 17, 2),
    Sketcher.Constraint("Tangent", 17, 1, 18, 1),
    Sketcher.Constraint("Tangent", 18, 2, 19, 1),
    Sketcher.Constraint("Tangent", 19, 2, 0, 1),
    Sketcher.Constraint("Vertical", 0),
    Sketcher.Constraint("Horizontal", 1),
    Sketcher.Constraint("Vertical", 2),
    Sketcher.Constraint("Horizontal", 4),
    Sketcher.Constraint("Horizontal", 18),
    Sketcher.Constraint("Equal", 3, 11),
    Sketcher.Constraint("Equal", 5, 17),
    Sketcher.Constraint("Equal", 11, 19),
    Sketcher.Constraint("Symmetric", 5, 3, 17, 3, -2),
    Sketcher.Constraint("Symmetric", 10, 2, 11, 1, -2),
    Sketcher.Constraint("Symmetric", 8, 2, 13, 2, -2),
    Sketcher.Constraint("Symmetric", 7, 2, 14, 2, -2),
    Sketcher.Constraint("Symmetric", 6, 2, 15, 2, -2),
    Sketcher.Constraint("Perpendicular", 8, 10),
    Sketcher.Constraint("Horizontal", 9, 2, 12, 2),
    Sketcher.Constraint("Equal", 4, 18),
    Sketcher.Constraint("Radius", 3, 10.0),
    Sketcher.Constraint("Radius", 5, 2.0),
    Sketcher.Constraint("DistanceX", 1, 1, 1, 2, 90.0),
    Sketcher.Constraint("DistanceY", 0, 2, 0, 1, 10.0),
    Sketcher.Constraint("Distance", 8, 9.0),
    Sketcher.Constraint("DistanceY", 5, 3, 11, 3, 8.0),
    Sketcher.Constraint("DistanceY", 6, 2, 7, 2, 20.0),
    Sketcher.Constraint("DistanceY", -1, 1, 3, 3, 67.325),
    Sketcher.Constraint("DistanceX", 9, 2, 5, 1, 16.317001),
    Sketcher.Constraint("DistanceX", 4, 2, 4, 1, 1.252091),
    Sketcher.Constraint("DistanceY", 5, 1, 10, 2, 1.892902),
    Sketcher.Constraint("Distance", 9, 31.788862),
    Sketcher.Constraint("Distance", 10, 13.690549),
    Sketcher.Constraint("DistanceX", -1, 1, 6, 2, 38.587949),
])
sketch19.setExpression("Constraints[36]", "Params.sketch19_radius")
sketch19.setExpression("Constraints[37]", "Params.sketch19_radius2")
sketch19.setExpression("Constraints[38]", "Params.sketch19_width")
sketch19.setExpression("Constraints[39]", "Params.sketch19_height")
sketch19.setExpression("Constraints[40]", "Params.sketch19_length")
pocket17 = body.newObject("PartDesign::Pocket", "Pocket016")
pocket17.Profile = sketch19
pocket17.setExpression("Length", "Params.pocket17_length")

# Sketch on XY plane
sketch20 = body.newObject("Sketcher::SketchObject", "Sketch019")
sketch20.AttachmentSupport = (doc.getObject("XY_Plane"), [""])
sketch20.MapMode = "FlatFace"
sketch20.AttachmentOffset = App.Placement(Vector(0, 0, 5.9), App.Rotation())
sketch20.addGeometry([
    Part.LineSegment(Vector(44, -72, 0), Vector(-44, -72, 0)),  # 0
    Part.ArcOfCircle(Part.Circle(Vector(-35, -67, 0), Vector(0, 0, 1), 10), math.radians(-150), math.radians(-90)),  # 1
    Part.LineSegment(Vector(-35, -77, 0), Vector(-25, -77, 0)),  # 2
    Part.LineSegment(Vector(-25, -77, 0), Vector(-10, -91, 0)),  # 3
    Part.LineSegment(Vector(-10, -91, 0), Vector(-10, -103, 0)),  # 4
    Part.LineSegment(Vector(-10, -103, 0), Vector(-4, -119, 0)),  # 5
    Part.LineSegment(Vector(-4, -119, 0), Vector(4, -119, 0)),  # 6
    Part.LineSegment(Vector(4, -119, 0), Vector(10, -103, 0)),  # 7
    Part.LineSegment(Vector(10, -103, 0), Vector(10, -91, 0)),  # 8
    Part.LineSegment(Vector(10, -91, 0), Vector(25, -77, 0)),  # 9
    Part.LineSegment(Vector(25, -77, 0), Vector(35, -77, 0)),  # 10
    Part.ArcOfCircle(Part.Circle(Vector(35, -67, 0), Vector(0, 0, 1), 10), math.radians(-90), math.radians(-30)),  # 11
], False)
sketch20.addConstraint([
    Sketcher.Constraint("Coincident", 0, 2, 1, 1),
    Sketcher.Constraint("Tangent", 1, 2, 2, 1),
    Sketcher.Constraint("Coincident", 2, 2, 3, 1),
    Sketcher.Constraint("Coincident", 3, 2, 4, 1),
    Sketcher.Constraint("Coincident", 4, 2, 5, 1),
    Sketcher.Constraint("Coincident", 5, 2, 6, 1),
    Sketcher.Constraint("Coincident", 6, 2, 7, 1),
    Sketcher.Constraint("Coincident", 7, 2, 8, 1),
    Sketcher.Constraint("Coincident", 8, 2, 9, 1),
    Sketcher.Constraint("Coincident", 9, 2, 10, 1),
    Sketcher.Constraint("Tangent", 10, 2, 11, 1),
    Sketcher.Constraint("Coincident", 11, 2, 0, 1),
    Sketcher.Constraint("Horizontal", 0),
    Sketcher.Constraint("Horizontal", 2),
    Sketcher.Constraint("Vertical", 4),
    Sketcher.Constraint("Horizontal", 6),
    Sketcher.Constraint("Vertical", 8),
    Sketcher.Constraint("Horizontal", 10),
    Sketcher.Constraint("Equal", 1, 11),
    Sketcher.Constraint("Symmetric", 1, 3, 11, 3, -2),
    Sketcher.Constraint("Symmetric", 4, 2, 7, 2, -2),
    Sketcher.Constraint("Horizontal", 3, 2, 8, 2),
    Sketcher.Constraint("Equal", 2, 10),
    Sketcher.Constraint("Equal", 5, 7),
    Sketcher.Constraint("Radius", 1, 10.0),
    Sketcher.Constraint("DistanceX", 6, 1, 6, 2, 9.0),
    Sketcher.Constraint("Distance", 5, 17.0),
    Sketcher.Constraint("DistanceX", 2, 1, 2, 2, 10.4),
    Sketcher.Constraint("DistanceY", 4, 2, 4, 1, 12.3),
    Sketcher.Constraint("DistanceX", 1, 3, -1, 1, 35.0),
    Sketcher.Constraint("DistanceX", 3, 2, -1, 1, 10.0),
    Sketcher.Constraint("DistanceY", 0, 2, 1, 3, 5.0),
    Sketcher.Constraint("DistanceY", 5, 2, 2, 2, 42.0),
    Sketcher.Constraint("DistanceY", 1, 3, -1, 1, 67.325),
])
sketch20.setExpression("Constraints[24]", "Params.sketch20_radius")
sketch20.setExpression("Constraints[25]", "Params.sketch20_width")
sketch20.setExpression("Constraints[26]", "Params.sketch20_length")
sketch20.setExpression("Constraints[27]", "Params.sketch20_width2")
sketch20.setExpression("Constraints[28]", "Params.sketch20_height")
pocket18 = body.newObject("PartDesign::Pocket", "Pocket017")
pocket18.Profile = sketch20
pocket18.Type = "UpToFirst"
doc.recompute()

fillet2 = body.newObject("PartDesign::Fillet", "Fillet001")
fillet2.Base = (pocket18, edges_at(pocket18, [
    (43.66, -72.325, 2.95),
    (-43.66, -72.325, 2.95),
    (45, 57.325, 2.95),
    (-45, 57.325, 2.95),
]))
fillet2.setExpression("Radius", "Params.fillet2_radius")

doc.recompute()
